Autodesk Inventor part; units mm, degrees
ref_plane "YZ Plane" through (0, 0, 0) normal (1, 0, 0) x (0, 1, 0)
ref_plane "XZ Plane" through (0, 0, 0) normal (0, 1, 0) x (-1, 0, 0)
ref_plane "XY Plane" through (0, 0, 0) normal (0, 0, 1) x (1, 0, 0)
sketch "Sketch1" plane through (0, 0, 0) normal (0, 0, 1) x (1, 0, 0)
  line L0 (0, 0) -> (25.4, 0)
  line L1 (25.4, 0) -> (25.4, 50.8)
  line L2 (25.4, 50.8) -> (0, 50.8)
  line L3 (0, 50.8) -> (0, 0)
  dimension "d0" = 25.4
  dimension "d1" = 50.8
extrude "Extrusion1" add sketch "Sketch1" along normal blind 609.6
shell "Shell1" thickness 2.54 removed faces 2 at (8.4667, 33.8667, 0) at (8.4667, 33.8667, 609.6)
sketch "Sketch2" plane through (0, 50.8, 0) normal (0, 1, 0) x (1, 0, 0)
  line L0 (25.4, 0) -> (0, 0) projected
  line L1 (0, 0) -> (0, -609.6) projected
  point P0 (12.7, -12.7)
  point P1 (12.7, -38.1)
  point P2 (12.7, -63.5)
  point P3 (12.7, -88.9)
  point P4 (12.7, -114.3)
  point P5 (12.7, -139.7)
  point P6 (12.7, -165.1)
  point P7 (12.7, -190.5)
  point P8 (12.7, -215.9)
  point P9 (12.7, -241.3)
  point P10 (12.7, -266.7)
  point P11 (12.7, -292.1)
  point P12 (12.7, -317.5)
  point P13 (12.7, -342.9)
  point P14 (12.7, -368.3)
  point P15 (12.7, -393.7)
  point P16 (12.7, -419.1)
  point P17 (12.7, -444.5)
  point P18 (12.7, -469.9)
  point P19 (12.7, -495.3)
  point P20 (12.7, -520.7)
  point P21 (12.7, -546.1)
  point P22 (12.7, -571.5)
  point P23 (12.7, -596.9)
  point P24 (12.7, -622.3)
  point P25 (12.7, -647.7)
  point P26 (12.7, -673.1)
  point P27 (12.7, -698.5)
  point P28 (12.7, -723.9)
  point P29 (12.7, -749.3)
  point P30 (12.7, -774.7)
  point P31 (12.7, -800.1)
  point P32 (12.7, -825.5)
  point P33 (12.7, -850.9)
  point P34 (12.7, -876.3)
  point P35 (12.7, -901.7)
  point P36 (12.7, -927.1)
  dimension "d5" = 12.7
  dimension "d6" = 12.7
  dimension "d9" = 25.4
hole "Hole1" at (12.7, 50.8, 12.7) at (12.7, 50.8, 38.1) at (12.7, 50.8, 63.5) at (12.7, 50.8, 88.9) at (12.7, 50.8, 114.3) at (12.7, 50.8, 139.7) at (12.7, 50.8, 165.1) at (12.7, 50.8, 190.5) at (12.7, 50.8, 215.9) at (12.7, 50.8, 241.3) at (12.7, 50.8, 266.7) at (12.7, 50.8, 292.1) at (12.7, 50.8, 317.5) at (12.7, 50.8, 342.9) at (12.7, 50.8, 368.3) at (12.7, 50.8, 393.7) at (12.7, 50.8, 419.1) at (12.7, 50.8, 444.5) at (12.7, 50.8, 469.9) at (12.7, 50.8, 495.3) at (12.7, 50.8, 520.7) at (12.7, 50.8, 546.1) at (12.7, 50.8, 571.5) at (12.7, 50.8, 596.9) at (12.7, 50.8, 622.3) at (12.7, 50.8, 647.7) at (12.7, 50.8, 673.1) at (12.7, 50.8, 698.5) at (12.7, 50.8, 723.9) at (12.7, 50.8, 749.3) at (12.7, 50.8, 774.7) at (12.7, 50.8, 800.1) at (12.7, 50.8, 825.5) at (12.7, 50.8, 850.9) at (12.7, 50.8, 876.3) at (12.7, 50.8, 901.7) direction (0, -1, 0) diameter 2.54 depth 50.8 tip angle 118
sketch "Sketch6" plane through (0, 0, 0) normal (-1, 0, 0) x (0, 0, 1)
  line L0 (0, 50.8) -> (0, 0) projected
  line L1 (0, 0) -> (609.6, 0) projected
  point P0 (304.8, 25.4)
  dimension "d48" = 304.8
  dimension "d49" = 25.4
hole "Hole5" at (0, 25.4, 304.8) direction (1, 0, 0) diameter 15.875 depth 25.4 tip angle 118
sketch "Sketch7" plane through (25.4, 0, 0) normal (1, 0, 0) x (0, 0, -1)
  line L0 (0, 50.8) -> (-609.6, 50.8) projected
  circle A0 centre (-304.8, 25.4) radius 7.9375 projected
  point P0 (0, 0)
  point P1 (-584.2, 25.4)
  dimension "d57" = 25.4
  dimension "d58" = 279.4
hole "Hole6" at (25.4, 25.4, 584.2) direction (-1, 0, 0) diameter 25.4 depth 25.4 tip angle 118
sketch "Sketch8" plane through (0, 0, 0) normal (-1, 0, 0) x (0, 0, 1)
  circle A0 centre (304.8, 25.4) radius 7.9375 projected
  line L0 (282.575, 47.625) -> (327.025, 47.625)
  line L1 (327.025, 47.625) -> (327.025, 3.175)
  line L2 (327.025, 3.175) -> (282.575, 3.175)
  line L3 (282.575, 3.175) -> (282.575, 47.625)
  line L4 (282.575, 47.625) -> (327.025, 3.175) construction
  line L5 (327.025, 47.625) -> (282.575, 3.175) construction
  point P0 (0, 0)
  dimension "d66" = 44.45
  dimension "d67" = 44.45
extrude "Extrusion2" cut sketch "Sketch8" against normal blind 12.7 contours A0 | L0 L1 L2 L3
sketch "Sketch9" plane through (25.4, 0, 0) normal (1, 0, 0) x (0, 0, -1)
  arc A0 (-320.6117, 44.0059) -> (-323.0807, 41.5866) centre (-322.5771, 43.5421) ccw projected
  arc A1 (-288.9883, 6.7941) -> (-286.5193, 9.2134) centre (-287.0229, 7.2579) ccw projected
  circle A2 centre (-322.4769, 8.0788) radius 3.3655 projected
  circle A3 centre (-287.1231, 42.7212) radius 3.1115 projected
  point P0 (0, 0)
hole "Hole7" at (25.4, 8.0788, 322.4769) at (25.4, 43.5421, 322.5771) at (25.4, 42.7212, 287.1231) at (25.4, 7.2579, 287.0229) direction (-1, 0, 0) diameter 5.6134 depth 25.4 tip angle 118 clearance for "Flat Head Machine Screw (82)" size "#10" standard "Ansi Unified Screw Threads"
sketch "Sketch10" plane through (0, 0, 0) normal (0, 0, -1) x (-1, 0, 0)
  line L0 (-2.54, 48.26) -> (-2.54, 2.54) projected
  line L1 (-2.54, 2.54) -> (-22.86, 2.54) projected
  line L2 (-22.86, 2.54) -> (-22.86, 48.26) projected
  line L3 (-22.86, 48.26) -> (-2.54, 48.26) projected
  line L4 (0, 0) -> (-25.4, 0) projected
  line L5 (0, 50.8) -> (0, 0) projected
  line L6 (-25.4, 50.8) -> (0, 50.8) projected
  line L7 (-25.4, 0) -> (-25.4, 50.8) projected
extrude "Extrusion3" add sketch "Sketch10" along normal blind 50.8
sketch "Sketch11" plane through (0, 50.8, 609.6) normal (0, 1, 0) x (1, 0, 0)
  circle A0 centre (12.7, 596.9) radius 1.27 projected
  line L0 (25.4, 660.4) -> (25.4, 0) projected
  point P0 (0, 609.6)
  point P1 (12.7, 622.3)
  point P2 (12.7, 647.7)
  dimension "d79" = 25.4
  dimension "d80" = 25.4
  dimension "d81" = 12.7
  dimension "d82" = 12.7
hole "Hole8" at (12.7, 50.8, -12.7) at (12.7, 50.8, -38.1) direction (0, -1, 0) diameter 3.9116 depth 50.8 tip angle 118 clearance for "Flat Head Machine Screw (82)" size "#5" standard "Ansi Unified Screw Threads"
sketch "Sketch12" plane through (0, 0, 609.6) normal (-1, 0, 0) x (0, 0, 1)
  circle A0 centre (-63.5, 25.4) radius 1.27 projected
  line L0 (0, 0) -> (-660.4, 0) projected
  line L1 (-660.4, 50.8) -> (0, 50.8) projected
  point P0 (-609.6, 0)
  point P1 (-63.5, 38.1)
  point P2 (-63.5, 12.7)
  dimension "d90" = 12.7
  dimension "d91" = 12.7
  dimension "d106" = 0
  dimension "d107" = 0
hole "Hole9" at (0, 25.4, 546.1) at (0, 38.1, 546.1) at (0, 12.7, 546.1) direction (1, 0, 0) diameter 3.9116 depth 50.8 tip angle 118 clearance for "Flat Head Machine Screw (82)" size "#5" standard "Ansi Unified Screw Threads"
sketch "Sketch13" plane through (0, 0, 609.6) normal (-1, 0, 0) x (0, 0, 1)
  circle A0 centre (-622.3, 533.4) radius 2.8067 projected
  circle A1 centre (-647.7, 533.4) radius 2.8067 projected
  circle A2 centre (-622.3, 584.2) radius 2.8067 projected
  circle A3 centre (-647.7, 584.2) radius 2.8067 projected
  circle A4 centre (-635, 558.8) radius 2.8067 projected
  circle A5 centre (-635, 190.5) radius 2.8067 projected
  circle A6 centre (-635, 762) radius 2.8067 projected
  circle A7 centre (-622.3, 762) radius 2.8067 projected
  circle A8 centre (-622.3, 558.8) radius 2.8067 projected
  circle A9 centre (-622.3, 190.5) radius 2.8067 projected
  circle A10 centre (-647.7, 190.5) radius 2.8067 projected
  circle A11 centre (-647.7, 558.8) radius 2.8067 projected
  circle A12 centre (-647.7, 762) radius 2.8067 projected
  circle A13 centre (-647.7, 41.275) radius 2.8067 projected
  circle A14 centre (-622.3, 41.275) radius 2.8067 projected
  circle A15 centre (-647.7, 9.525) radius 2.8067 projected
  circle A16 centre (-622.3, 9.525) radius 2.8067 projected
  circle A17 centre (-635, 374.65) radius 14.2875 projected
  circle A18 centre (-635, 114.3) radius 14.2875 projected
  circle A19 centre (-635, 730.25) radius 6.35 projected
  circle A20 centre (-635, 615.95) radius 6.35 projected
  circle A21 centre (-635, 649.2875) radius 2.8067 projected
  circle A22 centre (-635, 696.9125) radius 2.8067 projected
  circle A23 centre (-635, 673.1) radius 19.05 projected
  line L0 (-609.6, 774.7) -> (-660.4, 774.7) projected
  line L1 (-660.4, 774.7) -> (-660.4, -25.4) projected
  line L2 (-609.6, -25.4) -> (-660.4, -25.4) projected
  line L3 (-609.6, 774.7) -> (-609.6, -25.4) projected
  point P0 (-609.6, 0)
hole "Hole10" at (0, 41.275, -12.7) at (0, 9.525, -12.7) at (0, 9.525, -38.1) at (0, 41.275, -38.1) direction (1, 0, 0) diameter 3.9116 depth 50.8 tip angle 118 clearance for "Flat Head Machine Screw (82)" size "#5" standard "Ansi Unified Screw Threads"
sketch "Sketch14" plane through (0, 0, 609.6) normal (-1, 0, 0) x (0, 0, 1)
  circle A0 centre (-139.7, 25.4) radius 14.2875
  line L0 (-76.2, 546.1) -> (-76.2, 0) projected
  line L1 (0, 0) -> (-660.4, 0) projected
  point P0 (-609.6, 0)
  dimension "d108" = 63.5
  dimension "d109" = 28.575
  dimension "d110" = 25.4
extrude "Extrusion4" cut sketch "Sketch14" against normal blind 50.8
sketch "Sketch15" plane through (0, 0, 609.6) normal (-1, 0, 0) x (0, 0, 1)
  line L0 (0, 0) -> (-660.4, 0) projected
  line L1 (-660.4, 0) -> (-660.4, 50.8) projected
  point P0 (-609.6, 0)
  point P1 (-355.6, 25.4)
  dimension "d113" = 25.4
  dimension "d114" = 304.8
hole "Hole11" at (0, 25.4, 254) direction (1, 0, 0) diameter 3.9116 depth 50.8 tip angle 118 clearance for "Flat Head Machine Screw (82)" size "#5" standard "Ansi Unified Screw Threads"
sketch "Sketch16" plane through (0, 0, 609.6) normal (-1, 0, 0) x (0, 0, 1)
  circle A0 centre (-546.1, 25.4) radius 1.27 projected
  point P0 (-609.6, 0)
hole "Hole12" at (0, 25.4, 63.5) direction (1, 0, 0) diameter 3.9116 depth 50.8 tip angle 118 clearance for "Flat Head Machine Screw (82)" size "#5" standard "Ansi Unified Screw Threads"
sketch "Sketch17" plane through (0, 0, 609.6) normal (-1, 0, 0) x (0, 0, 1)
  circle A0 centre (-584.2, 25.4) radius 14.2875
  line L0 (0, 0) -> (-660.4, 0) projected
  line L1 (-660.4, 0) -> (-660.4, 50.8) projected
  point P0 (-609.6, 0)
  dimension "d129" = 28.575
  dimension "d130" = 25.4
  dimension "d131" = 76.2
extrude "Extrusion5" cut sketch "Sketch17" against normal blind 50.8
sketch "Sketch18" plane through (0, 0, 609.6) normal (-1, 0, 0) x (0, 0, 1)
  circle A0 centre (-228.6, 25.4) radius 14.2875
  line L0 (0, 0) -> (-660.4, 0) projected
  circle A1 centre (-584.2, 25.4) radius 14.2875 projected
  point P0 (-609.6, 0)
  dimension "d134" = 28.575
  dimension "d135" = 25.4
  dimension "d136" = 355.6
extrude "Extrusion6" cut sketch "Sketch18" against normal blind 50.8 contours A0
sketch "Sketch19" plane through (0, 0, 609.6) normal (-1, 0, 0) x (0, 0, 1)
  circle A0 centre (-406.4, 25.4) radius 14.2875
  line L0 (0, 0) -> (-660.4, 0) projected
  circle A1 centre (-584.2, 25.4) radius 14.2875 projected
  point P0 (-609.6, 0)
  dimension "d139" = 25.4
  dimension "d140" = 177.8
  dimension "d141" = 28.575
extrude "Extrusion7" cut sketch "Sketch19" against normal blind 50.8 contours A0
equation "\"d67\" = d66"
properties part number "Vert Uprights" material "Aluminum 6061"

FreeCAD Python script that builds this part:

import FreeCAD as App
import Part
import Sketcher
Q = App.Units.Quantity


def faces_at(feature, points):
    """Names of the faces that lie closest to the given points."""
    faces = feature.Shape.Faces
    near = lambda p: min(range(len(faces)), key=lambda i: faces[i].distToShape(Part.Vertex(*p))[0])
    return sorted({f"Face{near(p) + 1}" for p in points})


def add_polygon(sketch, points):
    """Adds a closed chain of lines whose ends are joined by coincident constraints."""
    first, n = sketch.GeometryCount, len(points)
    for a, b in zip(points, points[1:] + points[:1]):
        sketch.addGeometry(Part.LineSegment(App.Vector(*a, 0), App.Vector(*b, 0)), False)
    for i in range(n):
        sketch.addConstraint(Sketcher.Constraint("Coincident", first + i, 2, first + (i + 1) % n, 1))

doc = App.newDocument("Part")
params = doc.addObject("Spreadsheet::Sheet", "Params")
for row, (alias, value) in enumerate([
    ("sketch1_width", "1 in"),
    ("sketch1_height", "2 in"),
    ("pad1_length", "24 in"),
    ("thickness_wall", "0.1 in"),
    ("sketch2_diameter", "0.1 in"),
    ("hole_diameter", "0.1 in"),
    ("hole_depth", "2 in"),
    ("sketch3_diameter", "0.625 in"),
    ("hole2_diameter", "0.625 in"),
    ("hole2_depth", "1 in"),
    ("sketch4_diameter", "1 in"),
    ("hole3_diameter", "1 in"),
    ("hole3_depth", "1 in"),
    ("sketch5_width", "1.75 in"),
    ("pocket1_length", "0.5 in"),
    ("sketch6_diameter", "0.221 in"),
    ("hole4_diameter", "0.221 in"),
    ("hole4_depth", "1 in"),
    ("sketch7_width", "1 in"),
    ("sketch7_height", "2 in"),
    ("sketch7_width2", "0.8 in"),
    ("sketch7_height2", "1.8 in"),
    ("pad2_length", "2 in"),
    ("sketch8_diameter", "0.154 in"),
    ("hole5_diameter", "0.154 in"),
    ("hole5_depth", "2 in"),
    ("sketch9_diameter", "0.154 in"),
    ("hole6_diameter", "0.154 in"),
    ("hole6_depth", "2 in"),
    ("sketch10_diameter", "0.154 in"),
    ("hole7_diameter", "0.154 in"),
    ("hole7_depth", "2 in"),
    ("sketch11_diameter", "1.125 in"),
    ("pocket2_length", "2 in"),
    ("sketch12_diameter", "0.154 in"),
    ("hole8_diameter", "0.154 in"),
    ("hole8_depth", "2 in"),
    ("sketch13_diameter", "0.154 in"),
    ("hole9_diameter", "0.154 in"),
    ("hole9_depth", "2 in"),
    ("sketch14_diameter", "1.125 in"),
    ("pocket3_length", "2 in"),
    ("sketch15_diameter", "1.125 in"),
    ("pocket4_length", "2 in"),
    ("sketch16_diameter", "1.125 in"),
    ("pocket5_length", "2 in"),
], start=1):
    params.set(f"A{row}", alias)
    params.set(f"B{row}", "=" + value)
    params.setAlias(f"B{row}", alias)

body = doc.addObject("PartDesign::Body", "Body")

# Sketch on XY plane
sketch1 = doc.addObject("Sketcher::SketchObject", "Sketch")
body.addObject(sketch1)
sketch1.AttachmentSupport = (doc.XY_Plane, [""])
sketch1.MapMode = "FlatFace"
add_polygon(sketch1, [(0, 51), (0, 0), (25, 0), (25, 51)])  # lines 0-3
sketch1.addConstraint([
    Sketcher.Constraint("Vertical", 0),
    Sketcher.Constraint("Horizontal", 1),
    Sketcher.Constraint("Vertical", 2),
    Sketcher.Constraint("Horizontal", 3),
    Sketcher.Constraint("Coincident", 0, 2, -1, 1),
    Sketcher.Constraint("DistanceX", 1, 1, 1, 2, Q("1 in")),
    Sketcher.Constraint("DistanceY", 0, 2, 0, 1, Q("2 in")),
])
sketch1.setExpression("Constraints[9]", "Params.sketch1_width")
sketch1.setExpression("Constraints[10]", "Params.sketch1_height")
pad1 = doc.addObject("PartDesign::Pad", "Pad")
body.addObject(pad1)
pad1.Profile = sketch1
pad1.setExpression("Length", "Params.pad1_length")
doc.recompute()

thickness = doc.addObject("PartDesign::Thickness", "Thickness")
body.addObject(thickness)
thickness.Base = (pad1, faces_at(pad1, [(8.467, 33.867, 0), (8.467, 33.867, 609.6)]))
thickness.setExpression("Value", "Params.thickness_wall")
thickness.Reversed = True
thickness.Join = "Intersection"

# Sketch on XZ plane
sketch2 = doc.addObject("Sketcher::SketchObject", "Sketch001")
body.addObject(sketch2)
sketch2.AttachmentSupport = (doc.XZ_Plane, [""])
sketch2.MapMode = "FlatFace"
sketch2.AttachmentOffset = App.Placement(App.Vector(0, 0, -2 * 25.4), App.Rotation())
sketch2.addGeometry([
    Part.Circle(App.Vector(12.7, 12.7, 0), App.Vector(0, 0, 1), 1.3),  # 0
    Part.Circle(App.Vector(12.7, 38.1, 0), App.Vector(0, 0, 1), 1.3),  # 1
    Part.Circle(App.Vector(12.7, 63.5, 0), App.Vector(0, 0, 1), 1.3),  # 2
    Part.Circle(App.Vector(12.7, 88.9, 0), App.Vector(0, 0, 1), 1.3),  # 3
    Part.Circle(App.Vector(12.7, 114.3, 0), App.Vector(0, 0, 1), 1.3),  # 4
    Part.Circle(App.Vector(12.7, 139.7, 0), App.Vector(0, 0, 1), 1.3),  # 5
    Part.Circle(App.Vector(12.7, 165.1, 0), App.Vector(0, 0, 1), 1.3),  # 6
    Part.Circle(App.Vector(12.7, 190.5, 0), App.Vector(0, 0, 1), 1.3),  # 7
    Part.Circle(App.Vector(12.7, 215.9, 0), App.Vector(0, 0, 1), 1.3),  # 8
    Part.Circle(App.Vector(12.7, 241.3, 0), App.Vector(0, 0, 1), 1.3),  # 9
    Part.Circle(App.Vector(12.7, 266.7, 0), App.Vector(0, 0, 1), 1.3),  # 10
    Part.Circle(App.Vector(12.7, 292.1, 0), App.Vector(0, 0, 1), 1.3),  # 11
    Part.Circle(App.Vector(12.7, 317.5, 0), App.Vector(0, 0, 1), 1.3),  # 12
    Part.Circle(App.Vector(12.7, 342.9, 0), App.Vector(0, 0, 1), 1.3),  # 13
    Part.Circle(App.Vector(12.7, 368.3, 0), App.Vector(0, 0, 1), 1.3),  # 14
    Part.Circle(App.Vector(12.7, 393.7, 0), App.Vector(0, 0, 1), 1.3),  # 15
    Part.Circle(App.Vector(12.7, 419.1, 0), App.Vector(0, 0, 1), 1.3),  # 16
    Part.Circle(App.Vector(12.7, 444.5, 0), App.Vector(0, 0, 1), 1.3),  # 17
    Part.Circle(App.Vector(12.7, 469.9, 0), App.Vector(0, 0, 1), 1.3),  # 18
    Part.Circle(App.Vector(12.7, 495.3, 0), App.Vector(0, 0, 1), 1.3),  # 19
    Part.Circle(App.Vector(12.7, 520.7, 0), App.Vector(0, 0, 1), 1.3),  # 20
    Part.Circle(App.Vector(12.7, 546.1, 0), App.Vector(0, 0, 1), 1.3),  # 21
    Part.Circle(App.Vector(12.7, 571.5, 0), App.Vector(0, 0, 1), 1.3),  # 22
    Part.Circle(App.Vector(12.7, 596.9, 0), App.Vector(0, 0, 1), 1.3),  # 23
    Part.Circle(App.Vector(12.7, 622.3, 0), App.Vector(0, 0, 1), 1.3),  # 24
    Part.Circle(App.Vector(12.7, 647.7, 0), App.Vector(0, 0, 1), 1.3),  # 25
    Part.Circle(App.Vector(12.7, 673.1, 0), App.Vector(0, 0, 1), 1.3),  # 26
    Part.Circle(App.Vector(12.7, 698.5, 0), App.Vector(0, 0, 1), 1.3),  # 27
    Part.Circle(App.Vector(12.7, 723.9, 0), App.Vector(0, 0, 1), 1.3),  # 28
    Part.Circle(App.Vector(12.7, 749.3, 0), App.Vector(0, 0, 1), 1.3),  # 29
    Part.Circle(App.Vector(12.7, 774.7, 0), App.Vector(0, 0, 1), 1.3),  # 30
    Part.Circle(App.Vector(12.7, 800.1, 0), App.Vector(0, 0, 1), 1.3),  # 31
    Part.Circle(App.Vector(12.7, 825.5, 0), App.Vector(0, 0, 1), 1.3),  # 32
    Part.Circle(App.Vector(12.7, 850.9, 0), App.Vector(0, 0, 1), 1.3),  # 33
    Part.Circle(App.Vector(12.7, 876.3, 0), App.Vector(0, 0, 1), 1.3),  # 34
    Part.Circle(App.Vector(12.7, 901.7, 0), App.Vector(0, 0, 1), 1.3),  # 35
], False)
sketch2.addConstraint([
    Sketcher.Constraint("Equal", 0, 1),
    Sketcher.Constraint("Equal", 1, 2),
    Sketcher.Constraint("Equal", 2, 3),
    Sketcher.Constraint("Equal", 3, 4),
    Sketcher.Constraint("Equal", 4, 5),
    Sketcher.Constraint("Equal", 5, 6),
    Sketcher.Constraint("Equal", 6, 7),
    Sketcher.Constraint("Equal", 7, 8),
    Sketcher.Constraint("Equal", 8, 9),
    Sketcher.Constraint("Equal", 9, 10),
    Sketcher.Constraint("Equal", 10, 11),
    Sketcher.Constraint("Equal", 11, 12),
    Sketcher.Constraint("Equal", 12, 13),
    Sketcher.Constraint("Equal", 13, 14),
    Sketcher.Constraint("Equal", 14, 15),
    Sketcher.Constraint("Equal", 15, 16),
    Sketcher.Constraint("Equal", 16, 17),
    Sketcher.Constraint("Equal", 17, 18),
    Sketcher.Constraint("Equal", 18, 19),
    Sketcher.Constraint("Equal", 19, 20),
    Sketcher.Constraint("Equal", 20, 21),
    Sketcher.Constraint("Equal", 21, 22),
    Sketcher.Constraint("Equal", 22, 23),
    Sketcher.Constraint("Equal", 23, 24),
    Sketcher.Constraint("Equal", 24, 25),
    Sketcher.Constraint("Equal", 25, 26),
    Sketcher.Constraint("Equal", 26, 27),
    Sketcher.Constraint("Equal", 27, 28),
    Sketcher.Constraint("Equal", 28, 29),
    Sketcher.Constraint("Equal", 29, 30),
    Sketcher.Constraint("Equal", 30, 31),
    Sketcher.Constraint("Equal", 31, 32),
    Sketcher.Constraint("Equal", 32, 33),
    Sketcher.Constraint("Equal", 33, 34),
    Sketcher.Constraint("Equal", 34, 35),
    Sketcher.Constraint("Vertical", 0, 3, 1, 3),
    Sketcher.Constraint("Vertical", 1, 3, 2, 3),
    Sketcher.Constraint("Vertical", 2, 3, 3, 3),
    Sketcher.Constraint("Vertical", 3, 3, 4, 3),
    Sketcher.Constraint("Vertical", 4, 3, 5, 3),
    Sketcher.Constraint("Vertical", 5, 3, 6, 3),
    Sketcher.Constraint("Vertical", 6, 3, 7, 3),
    Sketcher.Constraint("Vertical", 7, 3, 8, 3),
    Sketcher.Constraint("Vertical", 8, 3, 9, 3),
    Sketcher.Constraint("Vertical", 9, 3, 10, 3),
    Sketcher.Constraint("Vertical", 10, 3, 11, 3),
    Sketcher.Constraint("Vertical", 11, 3, 12, 3),
    Sketcher.Constraint("Vertical", 12, 3, 13, 3),
    Sketcher.Constraint("Vertical", 13, 3, 14, 3),
    Sketcher.Constraint("Vertical", 14, 3, 15, 3),
    Sketcher.Constraint("Vertical", 15, 3, 16, 3),
    Sketcher.Constraint("Vertical", 16, 3, 17, 3),
    Sketcher.Constraint("Vertical", 17, 3, 18, 3),
    Sketcher.Constraint("Vertical", 18, 3, 19, 3),
    Sketcher.Constraint("Vertical", 19, 3, 20, 3),
    Sketcher.Constraint("Vertical", 20, 3, 21, 3),
    Sketcher.Constraint("Vertical", 21, 3, 22, 3),
    Sketcher.Constraint("Vertical", 22, 3, 23, 3),
    Sketcher.Constraint("Vertical", 23, 3, 24, 3),
    Sketcher.Constraint("Vertical", 24, 3, 25, 3),
    Sketcher.Constraint("Vertical", 25, 3, 26, 3),
    Sketcher.Constraint("Vertical", 26, 3, 27, 3),
    Sketcher.Constraint("Vertical", 27, 3, 28, 3),
    Sketcher.Constraint("Vertical", 28, 3, 29, 3),
    Sketcher.Constraint("Vertical", 29, 3, 30, 3),
    Sketcher.Constraint("Vertical", 30, 3, 31, 3),
    Sketcher.Constraint("Vertical", 31, 3, 32, 3),
    Sketcher.Constraint("Vertical", 32, 3, 33, 3),
    Sketcher.Constraint("Vertical", 33, 3, 34, 3),
    Sketcher.Constraint("Vertical", 34, 3, 35, 3),
    Sketcher.Constraint("Diameter", 0, Q("0.1 in")),
    Sketcher.Constraint("DistanceY", 0, 3, 1, 3, Q("1 in")),
    Sketcher.Constraint("DistanceY", 1, 3, 2, 3, Q("1 in")),
    Sketcher.Constraint("DistanceY", 2, 3, 3, 3, Q("1 in")),
    Sketcher.Constraint("DistanceY", 3, 3, 4, 3, Q("1 in")),
    Sketcher.Constraint("DistanceY", 4, 3, 5, 3, Q("1 in")),
    Sketcher.Constraint("DistanceY", 5, 3, 6, 3, Q("1 in")),
    Sketcher.Constraint("DistanceY", 6, 3, 7, 3, Q("1 in")),
    Sketcher.Constraint("DistanceY", 7, 3, 8, 3, Q("1 in")),
    Sketcher.Constraint("DistanceY", 8, 3, 9, 3, Q("1 in")),
    Sketcher.Constraint("DistanceY", 9, 3, 10, 3, Q("1 in")),
    Sketcher.Constraint("DistanceY", 10, 3, 11, 3, Q("1 in")),
    Sketcher.Constraint("DistanceY", 11, 3, 12, 3, Q("1 in")),
    Sketcher.Constraint("DistanceY", 12, 3, 13, 3, Q("1 in")),
    Sketcher.Constraint("DistanceY", 13, 3, 14, 3, Q("1 in")),
    Sketcher.Constraint("DistanceY", 14, 3, 15, 3, Q("1 in")),
    Sketcher.Constraint("DistanceY", 15, 3, 16, 3, Q("1 in")),
    Sketcher.Constraint("DistanceY", 16, 3, 17, 3, Q("1 in")),
    Sketcher.Constraint("DistanceY", 17, 3, 18, 3, Q("1 in")),
    Sketcher.Constraint("DistanceY", 18, 3, 19, 3, Q("1 in")),
    Sketcher.Constraint("DistanceY", 19, 3, 20, 3, Q("1 in")),
    Sketcher.Constraint("DistanceY", 20, 3, 21, 3, Q("1 in")),
    Sketcher.Constraint("DistanceY", 21, 3, 22, 3, Q("1 in")),
    Sketcher.Constraint("DistanceY", 22, 3, 23, 3, Q("1 in")),
    Sketcher.Constraint("DistanceY", 23, 3, 24, 3, Q("1 in")),
    Sketcher.Constraint("DistanceY", 24, 3, 25, 3, Q("1 in")),
    Sketcher.Constraint("DistanceY", 25, 3, 26, 3, Q("1 in")),
    Sketcher.Constraint("DistanceY", 26, 3, 27, 3, Q("1 in")),
    Sketcher.Constraint("DistanceY", 27, 3, 28, 3, Q("1 in")),
    Sketcher.Constraint("DistanceY", 28, 3, 29, 3, Q("1 in")),
    Sketcher.Constraint("DistanceY", 29, 3, 30, 3, Q("1 in")),
    Sketcher.Constraint("DistanceY", 30, 3, 31, 3, Q("1 in")),
    Sketcher.Constraint("DistanceY", 31, 3, 32, 3, Q("1 in")),
    Sketcher.Constraint("DistanceY", 32, 3, 33, 3, Q("1 in")),
    Sketcher.Constraint("DistanceY", 33, 3, 34, 3, Q("1 in")),
    Sketcher.Constraint("DistanceY", 34, 3, 35, 3, Q("1 in")),
    Sketcher.Constraint("DistanceX", -1, 1, 0, 3, Q("0.5 in")),
    Sketcher.Constraint("DistanceY", -1, 1, 0, 3, Q("0.5 in")),
])
sketch2.setExpression("Constraints[70]", "Params.sketch2_diameter")
doc.recompute()
hole = doc.addObject("PartDesign::Hole", "Hole")
body.addObject(hole)
hole.Profile = sketch2
hole.ThreadType = "None"
hole.setExpression("Diameter", "Params.hole_diameter")
hole.DepthType = "Dimension"
hole.setExpression("Depth", "Params.hole_depth")
hole.DrillPoint = "Angled"
hole.DrillPointAngle = 118
hole.Reversed = True

# Sketch on YZ plane
sketch3 = doc.addObject("Sketcher::SketchObject", "Sketch002")
body.addObject(sketch3)
sketch3.AttachmentSupport = (doc.YZ_Plane, [""])
sketch3.MapMode = "FlatFace"
sketch3.addGeometry(Part.Circle(App.Vector(25, 305, 0), App.Vector(0, 0, 1), 8), False)
sketch3.addConstraint([
    Sketcher.Constraint("Diameter", 0, Q("0.625 in")),
    Sketcher.Constraint("DistanceX", -1, 1, 0, 3, Q("1 in")),
    Sketcher.Constraint("DistanceY", -1, 1, 0, 3, Q("12 in")),
])
sketch3.setExpression("Constraints[0]", "Params.sketch3_diameter")
doc.recompute()
hole2 = doc.addObject("PartDesign::Hole", "Hole001")
body.addObject(hole2)
hole2.Profile = sketch3
hole2.ThreadType = "None"
hole2.setExpression("Diameter", "Params.hole2_diameter")
hole2.DepthType = "Dimension"
hole2.setExpression("Depth", "Params.hole2_depth")
hole2.DrillPoint = "Angled"
hole2.DrillPointAngle = 118
hole2.Reversed = True

# Sketch on YZ plane
sketch4 = doc.addObject("Sketcher::SketchObject", "Sketch003")
body.addObject(sketch4)
sketch4.AttachmentSupport = (doc.YZ_Plane, [""])
sketch4.MapMode = "FlatFace"
sketch4.AttachmentOffset = App.Placement(App.Vector(0, 0, 1 * 25.4), App.Rotation())
sketch4.addGeometry(Part.Circle(App.Vector(25, 584, 0), App.Vector(0, 0, 1), 13), False)
sketch4.addConstraint([
    Sketcher.Constraint("Diameter", 0, Q("1 in")),
    Sketcher.Constraint("DistanceX", -1, 1, 0, 3, Q("1 in")),
    Sketcher.Constraint("DistanceY", -1, 1, 0, 3, Q("23 in")),
])
sketch4.setExpression("Constraints[0]", "Params.sketch4_diameter")
doc.recompute()
hole3 = doc.addObject("PartDesign::Hole", "Hole002")
body.addObject(hole3)
hole3.Profile = sketch4
hole3.ThreadType = "None"
hole3.setExpression("Diameter", "Params.hole3_diameter")
hole3.DepthType = "Dimension"
hole3.setExpression("Depth", "Params.hole3_depth")
hole3.DrillPoint = "Angled"
hole3.DrillPointAngle = 118

# Sketch on YZ plane
sketch5 = doc.addObject("Sketcher::SketchObject", "Sketch004")
body.addObject(sketch5)
sketch5.AttachmentSupport = (doc.YZ_Plane, [""])
sketch5.MapMode = "FlatFace"
add_polygon(sketch5, [(48, 327), (48, 283), (3, 283), (3, 327)])  # lines 0-3
sketch5.addConstraint([
    Sketcher.Constraint("Vertical", 0),
    Sketcher.Constraint("Horizontal", 1),
    Sketcher.Constraint("Vertical", 2),
    Sketcher.Constraint("Horizontal", 3),
    Sketcher.Constraint("Equal", 3, 0),
    Sketcher.Constraint("DistanceX", 1, 2, 1, 1, Q("1.75 in")),
    Sketcher.Constraint("DistanceX", -1, 1, 0, 2, Q("1.875 in")),
    Sketcher.Constraint("DistanceY", -1, 1, 0, 2, Q("11.125 in")),
])
sketch5.setExpression("Constraints[9]", "Params.sketch5_width")
pocket1 = doc.addObject("PartDesign::Pocket", "Pocket")
body.addObject(pocket1)
pocket1.Profile = sketch5
pocket1.setExpression("Length", "Params.pocket1_length")
pocket1.Reversed = True

# Sketch on YZ plane
sketch6 = doc.addObject("Sketcher::SketchObject", "Sketch005")
body.addObject(sketch6)
sketch6.AttachmentSupport = (doc.YZ_Plane, [""])
sketch6.MapMode = "FlatFace"
sketch6.AttachmentOffset = App.Placement(App.Vector(0, 0, 1 * 25.4), App.Rotation())
sketch6.addGeometry([
    Part.Circle(App.Vector(8.1, 322.5, 0), App.Vector(0, 0, 1), 2.8),
    Part.Circle(App.Vector(43.5, 322.6, 0), App.Vector(0, 0, 1), 2.8),
    Part.Circle(App.Vector(42.7, 287.1, 0), App.Vector(0, 0, 1), 2.8),
    Part.Circle(App.Vector(7.3, 287, 0), App.Vector(0, 0, 1), 2.8),
], False)
sketch6.addConstraint([
    Sketcher.Constraint("Equal", 0, 1),
    Sketcher.Constraint("Equal", 1, 2),
    Sketcher.Constraint("Equal", 2, 3),
    Sketcher.Constraint("Diameter", 0, Q("0.221 in")),
    Sketcher.Constraint("DistanceX", 0, 3, 1, 3, Q("1.3962 in")),
    Sketcher.Constraint("DistanceX", 3, 3, 2, 3, Q("1.3962 in")),
    Sketcher.Constraint("DistanceX", 3, 3, 1, 3, Q("1.4285 in")),
    Sketcher.Constraint("DistanceX", -1, 1, 0, 3, 8.0788),
    Sketcher.Constraint("DistanceY", -1, 1, 0, 3, 322.477),
    Sketcher.Constraint("DistanceY", -1, 1, 1, 3, 322.577),
    Sketcher.Constraint("DistanceY", -1, 1, 2, 3, 287.123),
    Sketcher.Constraint("DistanceY", -1, 1, 3, 3, 287.023),
])
sketch6.setExpression("Constraints[3]", "Params.sketch6_diameter")
doc.recompute()
hole4 = doc.addObject("PartDesign::Hole", "Hole003")
body.addObject(hole4)
hole4.Profile = sketch6
hole4.ThreadType = "None"
hole4.setExpression("Diameter", "Params.hole4_diameter")
hole4.DepthType = "Dimension"
hole4.setExpression("Depth", "Params.hole4_depth")
hole4.DrillPoint = "Angled"
hole4.DrillPointAngle = 118

# Sketch on XY plane
sketch7 = doc.addObject("Sketcher::SketchObject", "Sketch006")
body.addObject(sketch7)
sketch7.AttachmentSupport = (doc.XY_Plane, [""])
sketch7.MapMode = "FlatFace"
add_polygon(sketch7, [(25, 0), (0, 0), (0, 51), (25, 51)])  # lines 0-3
add_polygon(sketch7, [(23, 48), (3, 48), (3, 3), (23, 3)])  # lines 4-7
sketch7.addConstraint([
    Sketcher.Constraint("Horizontal", 0),
    Sketcher.Constraint("Vertical", 1),
    Sketcher.Constraint("Horizontal", 2),
    Sketcher.Constraint("Vertical", 3),
    Sketcher.Constraint("Horizontal", 4),
    Sketcher.Constraint("Vertical", 5),
    Sketcher.Constraint("Horizontal", 6),
    Sketcher.Constraint("Vertical", 7),
    Sketcher.Constraint("Coincident", 0, 2, -1, 1),
    Sketcher.Constraint("DistanceX", 0, 2, 0, 1, Q("1 in")),
    Sketcher.Constraint("DistanceY", 1, 1, 1, 2, Q("2 in")),
    Sketcher.Constraint("DistanceX", 4, 2, 4, 1, Q("0.8 in")),
    Sketcher.Constraint("DistanceY", 5, 2, 5, 1, Q("1.8 in")),
    Sketcher.Constraint("DistanceX", -1, 1, 4, 2, Q("0.1 in")),
    Sketcher.Constraint("DistanceY", -1, 1, 4, 2, Q("1.9 in")),
])
sketch7.setExpression("Constraints[17]", "Params.sketch7_width")
sketch7.setExpression("Constraints[18]", "Params.sketch7_height")
sketch7.setExpression("Constraints[19]", "Params.sketch7_width2")
sketch7.setExpression("Constraints[20]", "Params.sketch7_height2")
pad2 = doc.addObject("PartDesign::Pad", "Pad001")
body.addObject(pad2)
pad2.Profile = sketch7
pad2.setExpression("Length", "Params.pad2_length")
pad2.Reversed = True

# Sketch on XZ plane
sketch8 = doc.addObject("Sketcher::SketchObject", "Sketch007")
body.addObject(sketch8)
sketch8.AttachmentSupport = (doc.XZ_Plane, [""])
sketch8.MapMode = "FlatFace"
sketch8.AttachmentOffset = App.Placement(App.Vector(0, 0, -2 * 25.4), App.Rotation())
sketch8.addGeometry([
    Part.Circle(App.Vector(12.7, -12.7, 0), App.Vector(0, 0, 1), 2),
    Part.Circle(App.Vector(12.7, -38.1, 0), App.Vector(0, 0, 1), 2),
], False)
sketch8.addConstraint([
    Sketcher.Constraint("Equal", 0, 1),
    Sketcher.Constraint("Vertical", 0, 3, 1, 3),
    Sketcher.Constraint("Diameter", 0, Q("0.154 in")),
    Sketcher.Constraint("DistanceY", 1, 3, 0, 3, Q("1 in")),
    Sketcher.Constraint("DistanceX", -1, 1, 0, 3, Q("0.5 in")),
    Sketcher.Constraint("DistanceY", 0, 3, -1, 1, Q("0.5 in")),
])
sketch8.setExpression("Constraints[2]", "Params.sketch8_diameter")
doc.recompute()
hole5 = doc.addObject("PartDesign::Hole", "Hole004")
body.addObject(hole5)
hole5.Profile = sketch8
hole5.ThreadType = "None"
hole5.setExpression("Diameter", "Params.hole5_diameter")
hole5.DepthType = "Dimension"
hole5.setExpression("Depth", "Params.hole5_depth")
hole5.DrillPoint = "Angled"
hole5.DrillPointAngle = 118
hole5.Reversed = True

# Sketch on YZ plane
sketch9 = doc.addObject("Sketcher::SketchObject", "Sketch008")
body.addObject(sketch9)
sketch9.AttachmentSupport = (doc.YZ_Plane, [""])
sketch9.MapMode = "FlatFace"
sketch9.addGeometry([
    Part.Circle(App.Vector(25.4, 546.1, 0), App.Vector(0, 0, 1), 2),
    Part.Circle(App.Vector(38.1, 546.1, 0), App.Vector(0, 0, 1), 2),
    Part.Circle(App.Vector(12.7, 546.1, 0), App.Vector(0, 0, 1), 2),
], False)
sketch9.addConstraint([
    Sketcher.Constraint("Equal", 0, 1),
    Sketcher.Constraint("Equal", 1, 2),
    Sketcher.Constraint("Horizontal", 0, 3, 1, 3),
    Sketcher.Constraint("Horizontal", 1, 3, 2, 3),
    Sketcher.Constraint("Diameter", 0, Q("0.154 in")),
    Sketcher.Constraint("DistanceX", -1, 1, 0, 3, Q("1 in")),
    Sketcher.Constraint("DistanceX", 2, 3, 1, 3, Q("1 in")),
    Sketcher.Constraint("DistanceY", -1, 1, 0, 3, Q("21.5 in")),
    Sketcher.Constraint("DistanceX", -1, 1, 1, 3, Q("1.5 in")),
])
sketch9.setExpression("Constraints[4]", "Params.sketch9_diameter")
doc.recompute()
hole6 = doc.addObject("PartDesign::Hole", "Hole005")
body.addObject(hole6)
hole6.Profile = sketch9
hole6.ThreadType = "None"
hole6.setExpression("Diameter", "Params.hole6_diameter")
hole6.DepthType = "Dimension"
hole6.setExpression("Depth", "Params.hole6_depth")
hole6.DrillPoint = "Angled"
hole6.DrillPointAngle = 118
hole6.Reversed = True

# Sketch on YZ plane
sketch10 = doc.addObject("Sketcher::SketchObject", "Sketch009")
body.addObject(sketch10)
sketch10.AttachmentSupport = (doc.YZ_Plane, [""])
sketch10.MapMode = "FlatFace"
sketch10.addGeometry([
    Part.Circle(App.Vector(41.3, -12.7, 0), App.Vector(0, 0, 1), 2),
    Part.Circle(App.Vector(9.5, -12.7, 0), App.Vector(0, 0, 1), 2),
    Part.Circle(App.Vector(9.5, -38.1, 0), App.Vector(0, 0, 1), 2),
    Part.Circle(App.Vector(41.3, -38.1, 0), App.Vector(0, 0, 1), 2),
], False)
sketch10.addConstraint([
    Sketcher.Constraint("Equal", 0, 1),
    Sketcher.Constraint("Equal", 1, 2),
    Sketcher.Constraint("Equal", 2, 3),
    Sketcher.Constraint("Horizontal", 0, 3, 1, 3),
    Sketcher.Constraint("Horizontal", 2, 3, 3, 3),
    Sketcher.Constraint("Vertical", 1, 3, 2, 3),
    Sketcher.Constraint("Vertical", 0, 3, 3, 3),
    Sketcher.Constraint("Diameter", 0, Q("0.154 in")),
    Sketcher.Constraint("DistanceY", 2, 3, 1, 3, Q("1 in")),
    Sketcher.Constraint("DistanceY", 0, 3, -1, 1, Q("0.5 in")),
    Sketcher.Constraint("DistanceX", 1, 3, 0, 3, Q("1.25 in")),
    Sketcher.Constraint("DistanceX", -1, 1, 0, 3, Q("1.625 in")),
])
sketch10.setExpression("Constraints[7]", "Params.sketch10_diameter")
doc.recompute()
hole7 = doc.addObject("PartDesign::Hole", "Hole006")
body.addObject(hole7)
hole7.Profile = sketch10
hole7.ThreadType = "None"
hole7.setExpression("Diameter", "Params.hole7_diameter")
hole7.DepthType = "Dimension"
hole7.setExpression("Depth", "Params.hole7_depth")
hole7.DrillPoint = "Angled"
hole7.DrillPointAngle = 118
hole7.Reversed = True

# Sketch on YZ plane
sketch11 = doc.addObject("Sketcher::SketchObject", "Sketch010")
body.addObject(sketch11)
sketch11.AttachmentSupport = (doc.YZ_Plane, [""])
sketch11.MapMode = "FlatFace"
sketch11.addGeometry(Part.Circle(App.Vector(25, 470, 0), App.Vector(0, 0, 1), 14), False)
sketch11.addConstraint([
    Sketcher.Constraint("Diameter", 0, Q("1.125 in")),
    Sketcher.Constraint("DistanceX", -1, 1, 0, 3, Q("1 in")),
    Sketcher.Constraint("DistanceY", -1, 1, 0, 3, Q("18.5 in")),
])
sketch11.setExpression("Constraints[0]", "Params.sketch11_diameter")
pocket2 = doc.addObject("PartDesign::Pocket", "Pocket001")
body.addObject(pocket2)
pocket2.Profile = sketch11
pocket2.setExpression("Length", "Params.pocket2_length")
pocket2.Reversed = True

# Sketch on YZ plane
sketch12 = doc.addObject("Sketcher::SketchObject", "Sketch011")
body.addObject(sketch12)
sketch12.AttachmentSupport = (doc.YZ_Plane, [""])
sketch12.MapMode = "FlatFace"
sketch12.addGeometry(Part.Circle(App.Vector(25.4, 254, 0), App.Vector(0, 0, 1), 2), False)
sketch12.addConstraint([
    Sketcher.Constraint("Diameter", 0, Q("0.154 in")),
    Sketcher.Constraint("DistanceX", -1, 1, 0, 3, Q("1 in")),
    Sketcher.Constraint("DistanceY", -1, 1, 0, 3, Q("10 in")),
])
sketch12.setExpression("Constraints[0]", "Params.sketch12_diameter")
doc.recompute()
hole8 = doc.addObject("PartDesign::Hole", "Hole007")
body.addObject(hole8)
hole8.Profile = sketch12
hole8.ThreadType = "None"
hole8.setExpression("Diameter", "Params.hole8_diameter")
hole8.DepthType = "Dimension"
hole8.setExpression("Depth", "Params.hole8_depth")
hole8.DrillPoint = "Angled"
hole8.DrillPointAngle = 118
hole8.Reversed = True

# Sketch on YZ plane
sketch13 = doc.addObject("Sketcher::SketchObject", "Sketch012")
body.addObject(sketch13)
sketch13.AttachmentSupport = (doc.YZ_Plane, [""])
sketch13.MapMode = "FlatFace"
sketch13.addGeometry(Part.Circle(App.Vector(25.4, 63.5, 0), App.Vector(0, 0, 1), 2), False)
sketch13.addConstraint([
    Sketcher.Constraint("Diameter", 0, Q("0.154 in")),
    Sketcher.Constraint("DistanceX", -1, 1, 0, 3, Q("1 in")),
    Sketcher.Constraint("DistanceY", -1, 1, 0, 3, Q("2.5 in")),
])
sketch13.setExpression("Constraints[0]", "Params.sketch13_diameter")
doc.recompute()
hole9 = doc.addObject("PartDesign::Hole", "Hole008")
body.addObject(hole9)
hole9.Profile = sketch13
hole9.ThreadType = "None"
hole9.setExpression("Diameter", "Params.hole9_diameter")
hole9.DepthType = "Dimension"
hole9.setExpression("Depth", "Params.hole9_depth")
hole9.DrillPoint = "Angled"
hole9.DrillPointAngle = 118
hole9.Reversed = True

# Sketch on YZ plane
sketch14 = doc.addObject("Sketcher::SketchObject", "Sketch013")
body.addObject(sketch14)
sketch14.AttachmentSupport = (doc.YZ_Plane, [""])
sketch14.MapMode = "FlatFace"
sketch14.addGeometry(Part.Circle(App.Vector(25, 25, 0), App.Vector(0, 0, 1), 14), False)
sketch14.addConstraint([
    Sketcher.Constraint("Diameter", 0, Q("1.125 in")),
    Sketcher.Constraint("DistanceX", -1, 1, 0, 3, Q("1 in")),
    Sketcher.Constraint("DistanceY", -1, 1, 0, 3, Q("1 in")),
])
sketch14.setExpression("Constraints[0]", "Params.sketch14_diameter")
pocket3 = doc.addObject("PartDesign::Pocket", "Pocket002")
body.addObject(pocket3)
pocket3.Profile = sketch14
pocket3.setExpression("Length", "Params.pocket3_length")
pocket3.Reversed = True

# Sketch on YZ plane
sketch15 = doc.addObject("Sketcher::SketchObject", "Sketch014")
body.addObject(sketch15)
sketch15.AttachmentSupport = (doc.YZ_Plane, [""])
sketch15.MapMode = "FlatFace"
sketch15.addGeometry(Part.Circle(App.Vector(25, 381, 0), App.Vector(0, 0, 1), 14), False)
sketch15.addConstraint([
    Sketcher.Constraint("Diameter", 0, Q("1.125 in")),
    Sketcher.Constraint("DistanceX", -1, 1, 0, 3, Q("1 in")),
    Sketcher.Constraint("DistanceY", -1, 1, 0, 3, Q("15 in")),
])
sketch15.setExpression("Constraints[0]", "Params.sketch15_diameter")
pocket4 = doc.addObject("PartDesign::Pocket", "Pocket003")
body.addObject(pocket4)
pocket4.Profile = sketch15
pocket4.setExpression("Length", "Params.pocket4_length")
pocket4.Reversed = True

# Sketch on YZ plane
sketch16 = doc.addObject("Sketcher::SketchObject", "Sketch015")
body.addObject(sketch16)
sketch16.AttachmentSupport = (doc.YZ_Plane, [""])
sketch16.MapMode = "FlatFace"
sketch16.addGeometry(Part.Circle(App.Vector(25, 203, 0), App.Vector(0, 0, 1), 14), False)
sketch16.addConstraint([
    Sketcher.Constraint("Diameter", 0, Q("1.125 in")),
    Sketcher.Constraint("DistanceX", -1, 1, 0, 3, Q("1 in")),
    Sketcher.Constraint("DistanceY", -1, 1, 0, 3, Q("8 in")),
])
sketch16.setExpression("Constraints[0]", "Params.sketch16_diameter")
pocket5 = doc.addObject("PartDesign::Pocket", "Pocket004")
body.addObject(pocket5)
pocket5.Profile = sketch16
pocket5.setExpression("Length", "Params.pocket5_length")
pocket5.Reversed = True

doc.recompute()
